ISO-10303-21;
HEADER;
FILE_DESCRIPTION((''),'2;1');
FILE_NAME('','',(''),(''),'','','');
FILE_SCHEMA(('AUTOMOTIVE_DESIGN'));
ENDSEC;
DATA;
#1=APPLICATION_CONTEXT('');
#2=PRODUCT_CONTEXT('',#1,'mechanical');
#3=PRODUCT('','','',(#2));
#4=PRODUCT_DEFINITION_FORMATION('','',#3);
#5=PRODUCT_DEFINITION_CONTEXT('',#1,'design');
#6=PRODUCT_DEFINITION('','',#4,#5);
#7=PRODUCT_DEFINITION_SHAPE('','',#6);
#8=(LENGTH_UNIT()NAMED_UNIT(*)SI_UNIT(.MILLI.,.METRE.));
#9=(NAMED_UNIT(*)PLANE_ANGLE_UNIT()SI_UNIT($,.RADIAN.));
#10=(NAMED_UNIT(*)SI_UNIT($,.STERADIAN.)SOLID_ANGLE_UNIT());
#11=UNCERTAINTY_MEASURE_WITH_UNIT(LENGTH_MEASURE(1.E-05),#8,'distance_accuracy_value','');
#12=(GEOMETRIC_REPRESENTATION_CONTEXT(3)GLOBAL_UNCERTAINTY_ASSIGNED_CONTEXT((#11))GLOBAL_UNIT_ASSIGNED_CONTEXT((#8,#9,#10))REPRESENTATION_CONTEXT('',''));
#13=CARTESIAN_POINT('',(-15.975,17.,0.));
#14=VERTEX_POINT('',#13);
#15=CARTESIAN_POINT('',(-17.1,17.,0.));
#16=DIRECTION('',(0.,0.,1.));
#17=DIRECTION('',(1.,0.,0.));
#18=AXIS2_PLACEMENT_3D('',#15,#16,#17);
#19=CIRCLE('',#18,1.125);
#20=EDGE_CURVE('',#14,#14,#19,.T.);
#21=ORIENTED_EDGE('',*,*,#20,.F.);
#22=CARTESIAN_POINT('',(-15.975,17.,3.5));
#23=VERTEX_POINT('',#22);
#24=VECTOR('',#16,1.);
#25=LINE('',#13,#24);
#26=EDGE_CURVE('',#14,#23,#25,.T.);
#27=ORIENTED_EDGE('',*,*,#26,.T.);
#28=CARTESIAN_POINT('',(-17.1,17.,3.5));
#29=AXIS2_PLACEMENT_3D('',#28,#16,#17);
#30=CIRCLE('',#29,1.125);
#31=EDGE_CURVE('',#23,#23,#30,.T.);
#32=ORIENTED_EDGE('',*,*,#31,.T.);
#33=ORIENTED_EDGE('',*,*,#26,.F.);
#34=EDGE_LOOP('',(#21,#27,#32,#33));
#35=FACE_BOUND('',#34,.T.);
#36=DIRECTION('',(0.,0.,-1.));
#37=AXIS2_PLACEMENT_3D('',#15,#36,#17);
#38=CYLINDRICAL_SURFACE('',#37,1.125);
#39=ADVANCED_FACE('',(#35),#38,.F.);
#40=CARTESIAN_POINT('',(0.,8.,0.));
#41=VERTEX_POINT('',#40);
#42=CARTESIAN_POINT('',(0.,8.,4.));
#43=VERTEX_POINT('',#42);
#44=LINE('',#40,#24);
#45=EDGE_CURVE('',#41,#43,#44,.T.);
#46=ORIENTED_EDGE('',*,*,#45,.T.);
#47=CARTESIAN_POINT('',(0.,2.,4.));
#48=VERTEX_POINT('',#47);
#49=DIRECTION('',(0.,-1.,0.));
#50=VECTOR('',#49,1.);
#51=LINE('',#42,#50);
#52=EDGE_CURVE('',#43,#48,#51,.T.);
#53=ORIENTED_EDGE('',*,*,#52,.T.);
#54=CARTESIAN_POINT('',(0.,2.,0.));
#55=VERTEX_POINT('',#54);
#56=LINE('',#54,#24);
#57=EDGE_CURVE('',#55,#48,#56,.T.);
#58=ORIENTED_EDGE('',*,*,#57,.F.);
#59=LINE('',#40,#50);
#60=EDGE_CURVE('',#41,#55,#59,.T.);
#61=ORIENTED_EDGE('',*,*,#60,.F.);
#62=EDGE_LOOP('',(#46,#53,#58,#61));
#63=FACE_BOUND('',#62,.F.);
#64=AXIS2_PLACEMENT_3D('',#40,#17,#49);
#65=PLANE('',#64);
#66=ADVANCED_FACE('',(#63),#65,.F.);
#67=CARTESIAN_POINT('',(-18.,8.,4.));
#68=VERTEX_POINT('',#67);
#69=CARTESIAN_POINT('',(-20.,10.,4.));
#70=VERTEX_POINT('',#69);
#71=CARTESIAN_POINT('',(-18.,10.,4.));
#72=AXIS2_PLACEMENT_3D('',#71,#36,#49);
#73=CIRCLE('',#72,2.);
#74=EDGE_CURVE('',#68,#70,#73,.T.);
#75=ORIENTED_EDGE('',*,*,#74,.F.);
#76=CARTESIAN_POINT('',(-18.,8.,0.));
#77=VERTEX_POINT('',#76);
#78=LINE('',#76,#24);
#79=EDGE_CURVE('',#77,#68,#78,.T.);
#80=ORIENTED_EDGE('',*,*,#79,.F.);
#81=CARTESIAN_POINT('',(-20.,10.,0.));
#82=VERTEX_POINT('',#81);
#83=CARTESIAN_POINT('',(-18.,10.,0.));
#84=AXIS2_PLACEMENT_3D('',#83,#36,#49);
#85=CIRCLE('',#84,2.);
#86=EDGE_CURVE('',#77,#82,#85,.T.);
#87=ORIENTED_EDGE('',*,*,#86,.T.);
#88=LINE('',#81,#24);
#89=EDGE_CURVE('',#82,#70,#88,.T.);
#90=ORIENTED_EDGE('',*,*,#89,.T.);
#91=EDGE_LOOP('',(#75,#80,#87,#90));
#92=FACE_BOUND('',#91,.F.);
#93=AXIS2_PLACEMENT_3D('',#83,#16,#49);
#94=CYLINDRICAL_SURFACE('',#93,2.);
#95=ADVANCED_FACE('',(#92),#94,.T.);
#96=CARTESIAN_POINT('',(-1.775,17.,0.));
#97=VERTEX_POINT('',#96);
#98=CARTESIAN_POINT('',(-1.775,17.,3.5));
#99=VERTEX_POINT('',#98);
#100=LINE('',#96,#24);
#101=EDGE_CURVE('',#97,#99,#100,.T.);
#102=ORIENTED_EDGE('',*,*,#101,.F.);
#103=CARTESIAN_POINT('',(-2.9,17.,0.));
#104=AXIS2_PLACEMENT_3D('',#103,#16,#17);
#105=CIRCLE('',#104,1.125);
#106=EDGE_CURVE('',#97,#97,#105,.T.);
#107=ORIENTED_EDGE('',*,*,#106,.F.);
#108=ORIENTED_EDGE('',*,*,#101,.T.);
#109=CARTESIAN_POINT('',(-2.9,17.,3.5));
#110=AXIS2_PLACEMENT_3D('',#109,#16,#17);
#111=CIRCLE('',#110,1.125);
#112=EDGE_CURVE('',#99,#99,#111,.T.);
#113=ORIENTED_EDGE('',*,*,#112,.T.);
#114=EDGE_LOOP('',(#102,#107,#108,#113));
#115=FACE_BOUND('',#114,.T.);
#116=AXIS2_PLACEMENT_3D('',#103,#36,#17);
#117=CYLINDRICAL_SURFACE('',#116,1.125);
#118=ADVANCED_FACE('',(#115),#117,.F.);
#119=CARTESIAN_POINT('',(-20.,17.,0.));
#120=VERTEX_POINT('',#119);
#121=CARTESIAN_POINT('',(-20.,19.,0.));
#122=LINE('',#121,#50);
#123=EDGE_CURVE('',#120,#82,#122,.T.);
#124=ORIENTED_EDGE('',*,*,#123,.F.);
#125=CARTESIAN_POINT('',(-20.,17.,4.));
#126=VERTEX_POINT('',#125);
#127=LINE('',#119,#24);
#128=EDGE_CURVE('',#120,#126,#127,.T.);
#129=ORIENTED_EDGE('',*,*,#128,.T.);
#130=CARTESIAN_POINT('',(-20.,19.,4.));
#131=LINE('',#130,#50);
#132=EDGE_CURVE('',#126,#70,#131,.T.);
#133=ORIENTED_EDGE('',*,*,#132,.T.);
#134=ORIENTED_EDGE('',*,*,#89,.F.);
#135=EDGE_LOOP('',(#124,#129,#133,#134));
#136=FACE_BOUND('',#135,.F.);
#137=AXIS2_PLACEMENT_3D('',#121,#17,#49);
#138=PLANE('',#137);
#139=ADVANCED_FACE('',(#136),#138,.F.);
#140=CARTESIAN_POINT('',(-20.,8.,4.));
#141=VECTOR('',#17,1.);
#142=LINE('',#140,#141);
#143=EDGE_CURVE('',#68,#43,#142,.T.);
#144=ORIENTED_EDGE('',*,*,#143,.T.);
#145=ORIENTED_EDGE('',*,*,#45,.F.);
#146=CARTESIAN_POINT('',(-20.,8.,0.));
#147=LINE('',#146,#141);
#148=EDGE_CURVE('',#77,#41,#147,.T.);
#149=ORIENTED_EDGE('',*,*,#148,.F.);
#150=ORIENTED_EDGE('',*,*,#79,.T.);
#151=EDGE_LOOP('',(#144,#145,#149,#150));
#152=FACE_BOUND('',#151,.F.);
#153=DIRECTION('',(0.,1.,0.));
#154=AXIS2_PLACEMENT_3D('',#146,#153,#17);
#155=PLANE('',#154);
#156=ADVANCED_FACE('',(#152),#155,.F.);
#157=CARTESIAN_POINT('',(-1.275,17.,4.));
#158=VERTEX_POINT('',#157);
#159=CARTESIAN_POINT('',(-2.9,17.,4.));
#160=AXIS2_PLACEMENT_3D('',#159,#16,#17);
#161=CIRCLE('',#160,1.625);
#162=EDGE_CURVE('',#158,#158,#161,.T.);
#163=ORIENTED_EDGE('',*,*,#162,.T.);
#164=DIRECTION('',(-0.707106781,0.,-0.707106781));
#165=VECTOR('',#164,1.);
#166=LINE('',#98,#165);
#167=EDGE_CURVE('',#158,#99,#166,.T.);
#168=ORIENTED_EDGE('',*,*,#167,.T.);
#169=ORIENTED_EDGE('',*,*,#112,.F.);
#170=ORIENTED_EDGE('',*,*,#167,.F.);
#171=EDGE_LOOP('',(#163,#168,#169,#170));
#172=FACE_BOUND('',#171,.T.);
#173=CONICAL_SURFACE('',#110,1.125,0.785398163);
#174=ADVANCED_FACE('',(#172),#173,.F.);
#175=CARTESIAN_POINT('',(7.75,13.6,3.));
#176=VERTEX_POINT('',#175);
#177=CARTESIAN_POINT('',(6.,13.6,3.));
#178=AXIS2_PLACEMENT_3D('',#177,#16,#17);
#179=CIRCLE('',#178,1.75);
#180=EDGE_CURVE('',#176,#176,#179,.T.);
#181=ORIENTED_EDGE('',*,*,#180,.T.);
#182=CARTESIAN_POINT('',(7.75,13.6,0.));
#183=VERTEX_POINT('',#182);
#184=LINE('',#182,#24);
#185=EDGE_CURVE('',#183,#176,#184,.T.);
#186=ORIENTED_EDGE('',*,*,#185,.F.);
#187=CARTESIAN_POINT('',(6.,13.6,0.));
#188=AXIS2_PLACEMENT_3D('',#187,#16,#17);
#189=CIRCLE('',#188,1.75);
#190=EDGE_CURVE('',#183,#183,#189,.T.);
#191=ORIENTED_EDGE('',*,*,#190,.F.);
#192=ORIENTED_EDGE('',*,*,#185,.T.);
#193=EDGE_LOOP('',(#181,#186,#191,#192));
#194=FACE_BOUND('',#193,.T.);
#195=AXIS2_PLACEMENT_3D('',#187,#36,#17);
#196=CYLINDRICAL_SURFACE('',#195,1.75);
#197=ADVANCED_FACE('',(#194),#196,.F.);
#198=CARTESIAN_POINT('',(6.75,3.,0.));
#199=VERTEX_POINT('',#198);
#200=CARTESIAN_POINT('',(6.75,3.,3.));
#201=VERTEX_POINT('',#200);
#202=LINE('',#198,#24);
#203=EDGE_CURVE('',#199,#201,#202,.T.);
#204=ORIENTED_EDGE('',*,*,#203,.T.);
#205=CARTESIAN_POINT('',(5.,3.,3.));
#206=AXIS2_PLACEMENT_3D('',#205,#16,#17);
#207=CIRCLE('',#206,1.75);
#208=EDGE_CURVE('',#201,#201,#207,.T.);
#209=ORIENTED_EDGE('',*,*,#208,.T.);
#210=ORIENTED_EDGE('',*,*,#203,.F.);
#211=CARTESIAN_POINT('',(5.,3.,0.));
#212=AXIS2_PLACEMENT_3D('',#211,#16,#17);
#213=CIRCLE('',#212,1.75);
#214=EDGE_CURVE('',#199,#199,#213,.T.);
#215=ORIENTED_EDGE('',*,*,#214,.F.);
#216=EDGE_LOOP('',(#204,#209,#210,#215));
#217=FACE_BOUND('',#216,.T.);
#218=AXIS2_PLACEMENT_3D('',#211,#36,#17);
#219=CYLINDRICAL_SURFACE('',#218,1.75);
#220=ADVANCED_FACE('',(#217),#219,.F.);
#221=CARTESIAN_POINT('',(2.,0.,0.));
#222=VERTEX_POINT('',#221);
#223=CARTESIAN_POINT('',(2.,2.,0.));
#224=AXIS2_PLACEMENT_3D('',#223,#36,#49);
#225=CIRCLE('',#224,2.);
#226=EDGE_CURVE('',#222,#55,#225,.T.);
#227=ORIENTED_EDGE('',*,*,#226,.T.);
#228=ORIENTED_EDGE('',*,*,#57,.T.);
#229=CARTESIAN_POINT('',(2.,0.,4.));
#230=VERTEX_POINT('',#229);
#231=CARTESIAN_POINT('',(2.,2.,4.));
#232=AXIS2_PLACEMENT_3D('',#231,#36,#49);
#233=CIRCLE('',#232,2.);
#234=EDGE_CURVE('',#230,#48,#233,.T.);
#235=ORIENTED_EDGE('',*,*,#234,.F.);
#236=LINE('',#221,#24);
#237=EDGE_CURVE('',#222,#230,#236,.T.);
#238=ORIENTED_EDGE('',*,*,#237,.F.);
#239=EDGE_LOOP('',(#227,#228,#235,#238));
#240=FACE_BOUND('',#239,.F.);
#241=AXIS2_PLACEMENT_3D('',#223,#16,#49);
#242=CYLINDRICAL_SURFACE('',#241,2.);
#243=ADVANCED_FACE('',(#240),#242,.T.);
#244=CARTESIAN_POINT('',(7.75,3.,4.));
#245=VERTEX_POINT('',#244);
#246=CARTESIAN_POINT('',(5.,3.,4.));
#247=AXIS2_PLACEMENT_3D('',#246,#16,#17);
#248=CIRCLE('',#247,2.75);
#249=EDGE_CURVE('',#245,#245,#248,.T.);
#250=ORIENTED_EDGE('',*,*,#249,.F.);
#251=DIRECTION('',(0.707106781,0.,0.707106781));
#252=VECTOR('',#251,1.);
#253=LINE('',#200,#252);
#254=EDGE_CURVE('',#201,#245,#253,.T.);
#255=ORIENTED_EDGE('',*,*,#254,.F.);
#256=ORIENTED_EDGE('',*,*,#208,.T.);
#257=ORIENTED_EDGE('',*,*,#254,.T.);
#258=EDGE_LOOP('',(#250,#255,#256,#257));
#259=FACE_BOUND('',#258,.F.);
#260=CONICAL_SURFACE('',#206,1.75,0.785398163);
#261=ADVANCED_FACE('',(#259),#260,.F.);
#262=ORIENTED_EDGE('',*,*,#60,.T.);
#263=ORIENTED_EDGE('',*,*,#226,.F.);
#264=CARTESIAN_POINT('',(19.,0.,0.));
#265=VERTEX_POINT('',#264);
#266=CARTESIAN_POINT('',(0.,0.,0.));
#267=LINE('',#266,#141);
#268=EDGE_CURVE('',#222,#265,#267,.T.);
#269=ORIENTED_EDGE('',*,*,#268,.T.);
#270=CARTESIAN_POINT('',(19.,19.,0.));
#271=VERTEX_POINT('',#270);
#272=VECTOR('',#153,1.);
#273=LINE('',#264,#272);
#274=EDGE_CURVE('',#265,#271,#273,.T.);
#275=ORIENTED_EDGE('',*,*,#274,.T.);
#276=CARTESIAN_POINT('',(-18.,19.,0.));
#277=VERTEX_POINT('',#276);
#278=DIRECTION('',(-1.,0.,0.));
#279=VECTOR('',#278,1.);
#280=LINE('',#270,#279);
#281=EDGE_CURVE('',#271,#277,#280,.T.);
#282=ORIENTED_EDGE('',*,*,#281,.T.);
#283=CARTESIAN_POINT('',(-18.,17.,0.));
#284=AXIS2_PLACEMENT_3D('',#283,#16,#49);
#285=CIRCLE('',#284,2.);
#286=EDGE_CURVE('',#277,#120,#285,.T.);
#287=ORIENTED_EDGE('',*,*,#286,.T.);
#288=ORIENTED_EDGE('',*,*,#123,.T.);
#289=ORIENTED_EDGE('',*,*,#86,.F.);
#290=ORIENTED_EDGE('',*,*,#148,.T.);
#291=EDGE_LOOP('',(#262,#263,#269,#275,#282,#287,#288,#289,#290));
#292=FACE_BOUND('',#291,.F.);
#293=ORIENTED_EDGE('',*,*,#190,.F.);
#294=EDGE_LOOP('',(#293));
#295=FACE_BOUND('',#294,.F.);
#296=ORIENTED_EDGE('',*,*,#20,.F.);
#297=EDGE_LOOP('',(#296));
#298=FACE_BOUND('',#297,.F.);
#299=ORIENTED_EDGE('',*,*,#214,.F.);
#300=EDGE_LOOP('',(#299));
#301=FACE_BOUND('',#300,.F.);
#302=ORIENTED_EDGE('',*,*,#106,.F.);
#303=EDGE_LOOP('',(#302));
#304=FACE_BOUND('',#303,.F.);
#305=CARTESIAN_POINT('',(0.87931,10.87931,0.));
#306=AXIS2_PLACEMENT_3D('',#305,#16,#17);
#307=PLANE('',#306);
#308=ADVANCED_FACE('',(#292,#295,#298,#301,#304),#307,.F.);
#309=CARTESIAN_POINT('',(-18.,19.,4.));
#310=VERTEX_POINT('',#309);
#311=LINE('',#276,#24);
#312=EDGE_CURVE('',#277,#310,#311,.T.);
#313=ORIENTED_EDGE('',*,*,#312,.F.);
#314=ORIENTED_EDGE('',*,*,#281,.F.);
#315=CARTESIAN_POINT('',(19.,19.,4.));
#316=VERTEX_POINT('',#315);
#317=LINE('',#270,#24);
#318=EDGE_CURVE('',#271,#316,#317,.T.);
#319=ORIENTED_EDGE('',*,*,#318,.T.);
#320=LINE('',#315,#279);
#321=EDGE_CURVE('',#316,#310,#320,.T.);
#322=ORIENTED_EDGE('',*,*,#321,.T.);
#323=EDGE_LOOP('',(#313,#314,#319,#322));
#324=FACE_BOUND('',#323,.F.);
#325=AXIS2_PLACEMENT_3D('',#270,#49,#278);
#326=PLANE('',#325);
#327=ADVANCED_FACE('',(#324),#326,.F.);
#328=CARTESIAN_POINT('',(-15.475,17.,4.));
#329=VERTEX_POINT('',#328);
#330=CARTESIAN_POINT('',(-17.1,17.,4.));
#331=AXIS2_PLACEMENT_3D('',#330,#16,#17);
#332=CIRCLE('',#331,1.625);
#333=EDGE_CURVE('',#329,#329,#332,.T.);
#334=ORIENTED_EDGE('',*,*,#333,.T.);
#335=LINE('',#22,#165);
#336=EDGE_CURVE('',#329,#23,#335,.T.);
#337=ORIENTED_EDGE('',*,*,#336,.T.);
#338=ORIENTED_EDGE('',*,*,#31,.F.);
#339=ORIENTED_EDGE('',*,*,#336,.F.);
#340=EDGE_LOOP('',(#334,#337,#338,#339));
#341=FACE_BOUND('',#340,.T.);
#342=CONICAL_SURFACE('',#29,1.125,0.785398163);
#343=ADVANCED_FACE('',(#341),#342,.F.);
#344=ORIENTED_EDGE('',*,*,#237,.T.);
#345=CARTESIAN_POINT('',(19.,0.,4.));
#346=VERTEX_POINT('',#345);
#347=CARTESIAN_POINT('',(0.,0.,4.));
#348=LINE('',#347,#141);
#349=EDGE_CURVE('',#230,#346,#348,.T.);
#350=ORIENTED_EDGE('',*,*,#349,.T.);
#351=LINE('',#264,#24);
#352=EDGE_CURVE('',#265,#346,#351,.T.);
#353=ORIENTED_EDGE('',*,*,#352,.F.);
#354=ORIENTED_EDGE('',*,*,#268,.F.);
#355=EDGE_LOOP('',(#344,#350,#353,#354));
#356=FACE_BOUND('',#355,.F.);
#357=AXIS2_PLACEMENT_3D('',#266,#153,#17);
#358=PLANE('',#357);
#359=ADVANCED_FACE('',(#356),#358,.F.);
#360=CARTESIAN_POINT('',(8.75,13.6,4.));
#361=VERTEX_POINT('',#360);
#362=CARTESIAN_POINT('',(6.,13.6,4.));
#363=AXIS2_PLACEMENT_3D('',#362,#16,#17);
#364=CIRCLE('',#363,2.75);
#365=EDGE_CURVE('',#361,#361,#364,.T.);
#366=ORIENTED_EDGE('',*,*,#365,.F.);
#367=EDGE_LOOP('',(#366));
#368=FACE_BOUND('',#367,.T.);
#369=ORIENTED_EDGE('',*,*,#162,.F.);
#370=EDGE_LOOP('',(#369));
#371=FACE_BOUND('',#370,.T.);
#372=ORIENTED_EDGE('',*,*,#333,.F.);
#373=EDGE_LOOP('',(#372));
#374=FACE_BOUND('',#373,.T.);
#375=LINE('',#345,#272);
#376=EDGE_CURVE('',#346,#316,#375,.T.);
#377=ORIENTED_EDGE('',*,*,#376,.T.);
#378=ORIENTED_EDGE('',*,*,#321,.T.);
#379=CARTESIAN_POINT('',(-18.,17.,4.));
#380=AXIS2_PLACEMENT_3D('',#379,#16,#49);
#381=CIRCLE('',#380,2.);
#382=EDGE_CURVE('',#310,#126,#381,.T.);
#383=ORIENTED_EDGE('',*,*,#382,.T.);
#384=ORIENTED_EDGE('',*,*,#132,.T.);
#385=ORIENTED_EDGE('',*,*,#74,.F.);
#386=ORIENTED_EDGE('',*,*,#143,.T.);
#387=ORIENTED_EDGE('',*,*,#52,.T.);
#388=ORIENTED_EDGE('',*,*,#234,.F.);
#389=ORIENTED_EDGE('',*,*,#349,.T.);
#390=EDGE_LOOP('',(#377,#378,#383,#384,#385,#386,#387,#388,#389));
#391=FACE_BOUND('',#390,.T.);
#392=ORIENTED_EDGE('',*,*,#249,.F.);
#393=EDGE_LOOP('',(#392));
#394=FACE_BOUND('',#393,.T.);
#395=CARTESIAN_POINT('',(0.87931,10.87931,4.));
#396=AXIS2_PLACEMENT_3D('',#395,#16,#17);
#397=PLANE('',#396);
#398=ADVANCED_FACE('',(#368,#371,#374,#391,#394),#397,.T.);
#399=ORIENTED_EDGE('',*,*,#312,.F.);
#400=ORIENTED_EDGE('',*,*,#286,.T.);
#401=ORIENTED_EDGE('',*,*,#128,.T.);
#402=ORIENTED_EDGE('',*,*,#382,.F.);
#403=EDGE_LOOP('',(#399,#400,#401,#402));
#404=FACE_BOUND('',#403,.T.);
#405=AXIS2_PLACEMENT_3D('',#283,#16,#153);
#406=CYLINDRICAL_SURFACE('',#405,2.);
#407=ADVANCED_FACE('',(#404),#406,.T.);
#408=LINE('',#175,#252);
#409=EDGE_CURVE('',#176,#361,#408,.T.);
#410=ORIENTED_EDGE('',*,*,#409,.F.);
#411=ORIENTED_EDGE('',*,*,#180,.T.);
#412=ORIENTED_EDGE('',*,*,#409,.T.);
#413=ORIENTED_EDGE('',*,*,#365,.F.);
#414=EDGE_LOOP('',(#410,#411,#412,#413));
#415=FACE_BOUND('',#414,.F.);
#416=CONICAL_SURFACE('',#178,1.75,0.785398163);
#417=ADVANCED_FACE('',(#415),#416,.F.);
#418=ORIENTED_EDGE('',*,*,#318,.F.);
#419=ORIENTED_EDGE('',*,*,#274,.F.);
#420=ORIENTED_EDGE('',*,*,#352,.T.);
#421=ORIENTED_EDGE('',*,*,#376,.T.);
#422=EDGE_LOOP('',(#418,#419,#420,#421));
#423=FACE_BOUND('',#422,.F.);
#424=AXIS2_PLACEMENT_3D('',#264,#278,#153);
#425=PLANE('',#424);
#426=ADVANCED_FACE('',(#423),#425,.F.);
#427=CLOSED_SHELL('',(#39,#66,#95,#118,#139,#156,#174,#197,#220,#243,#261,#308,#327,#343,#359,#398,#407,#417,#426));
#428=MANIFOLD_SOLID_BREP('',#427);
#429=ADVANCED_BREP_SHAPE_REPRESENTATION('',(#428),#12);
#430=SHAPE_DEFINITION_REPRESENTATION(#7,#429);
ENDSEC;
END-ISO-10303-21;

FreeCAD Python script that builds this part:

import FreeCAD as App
import Part
import Sketcher
Q = App.Units.Quantity


def edges_at(feature, points):
    """Names of the edges that pass closest to the given points."""
    edges = feature.Shape.Edges
    near = lambda p: min(range(len(edges)), key=lambda i: edges[i].distToShape(Part.Vertex(*p))[0])
    return sorted({f"Edge{near(p) + 1}" for p in points})

doc = App.newDocument("Part")
params = doc.addObject("Spreadsheet::Sheet", "Params")
for row, (alias, value) in enumerate([
    ("sketch1_diameter", "3.5 mm"),
    ("sketch1_diameter2", "2.25 mm"),
    ("sketch1_width", "19 mm"),
    ("sketch1_width2", "39 mm"),
    ("sketch1_height", "11 mm"),
    ("pad1_length", "4 mm"),
    ("chamfer_size", "1 mm"),
    ("chamfer2_size", "0.5 mm"),
    ("fillet_radius", "2 mm"),
], start=1):
    params.set(f"A{row}", alias)
    params.set(f"B{row}", "=" + value)
    params.setAlias(f"B{row}", alias)

body = doc.addObject("PartDesign::Body", "Body")

# Sketch on XY plane
sketch1 = body.newObject("Sketcher::SketchObject", "Sketch")
sketch1.AttachmentSupport = (doc.getObject("XY_Plane"), [""])
sketch1.MapMode = "FlatFace"
sketch1.addGeometry(Part.LineSegment(App.Vector(0, 0, 0), App.Vector(19, 0, 0)), False)
sketch1.addGeometry(Part.LineSegment(App.Vector(19, 0, 0), App.Vector(19, 19, 0)), False)
sketch1.addGeometry(Part.LineSegment(App.Vector(19, 19, 0), App.Vector(-20, 19, 0)), False)
sketch1.addGeometry(Part.LineSegment(App.Vector(-20, 19, 0), App.Vector(-20, 8, 0)), False)
sketch1.addGeometry(Part.LineSegment(App.Vector(-20, 8, 0), App.Vector(0, 8, 0)), False)
sketch1.addGeometry(Part.LineSegment(App.Vector(0, 8, 0), App.Vector(0, 0, 0)), False)
sketch1.addGeometry(Part.Circle(App.Vector(5, 3, 0), App.Vector(0, 0, 1), 1.8), False)
sketch1.addGeometry(Part.Circle(App.Vector(-17.1, 17, 0), App.Vector(0, 0, 1), 1.1), False)
sketch1.addGeometry(Part.Circle(App.Vector(6, 13.6, 0), App.Vector(0, 0, 1), 1.8), False)
sketch1.addGeometry(Part.Circle(App.Vector(-2.9, 17, 0), App.Vector(0, 0, 1), 1.1), False)
sketch1.addConstraint(Sketcher.Constraint("Coincident", 0, 2, 1, 1))
sketch1.addConstraint(Sketcher.Constraint("Coincident", 1, 2, 2, 1))
sketch1.addConstraint(Sketcher.Constraint("Coincident", 2, 2, 3, 1))
sketch1.addConstraint(Sketcher.Constraint("Coincident", 3, 2, 4, 1))
sketch1.addConstraint(Sketcher.Constraint("Coincident", 4, 2, 5, 1))
sketch1.addConstraint(Sketcher.Constraint("Coincident", 5, 2, 0, 1))
sketch1.addConstraint(Sketcher.Constraint("Horizontal", 0))
sketch1.addConstraint(Sketcher.Constraint("Vertical", 1))
sketch1.addConstraint(Sketcher.Constraint("Horizontal", 2))
sketch1.addConstraint(Sketcher.Constraint("Vertical", 3))
sketch1.addConstraint(Sketcher.Constraint("Horizontal", 4))
sketch1.addConstraint(Sketcher.Constraint("Vertical", 5))
sketch1.addConstraint(Sketcher.Constraint("Coincident", 5, 2, -1, 1))
sketch1.addConstraint(Sketcher.Constraint("Equal", 6, 8))
sketch1.addConstraint(Sketcher.Constraint("Equal", 7, 9))
sketch1.addConstraint(Sketcher.Constraint("Horizontal", 7, 3, 9, 3))
sketch1.addConstraint(Sketcher.Constraint("Equal", 0, 1))
sketch1.addConstraint(Sketcher.Constraint("Diameter", 6, Q("3.5 mm")))
sketch1.addConstraint(Sketcher.Constraint("Diameter", 7, Q("2.25 mm")))
sketch1.addConstraint(Sketcher.Constraint("DistanceX", 0, 1, 0, 2, Q("19 mm")))
sketch1.addConstraint(Sketcher.Constraint("DistanceX", 2, 2, 2, 1, Q("39 mm")))
sketch1.addConstraint(Sketcher.Constraint("DistanceY", 3, 2, 3, 1, Q("11 mm")))
sketch1.addConstraint(Sketcher.Constraint("DistanceX", -1, 1, 6, 3, Q("5 mm")))
sketch1.addConstraint(Sketcher.Constraint("DistanceY", -1, 1, 6, 3, Q("3 mm")))
sketch1.addConstraint(Sketcher.Constraint("DistanceY", -1, 1, 7, 3, Q("17 mm")))
sketch1.addConstraint(Sketcher.Constraint("DistanceX", -1, 1, 8, 3, Q("6 mm")))
sketch1.addConstraint(Sketcher.Constraint("DistanceX", 7, 3, -1, 1, Q("17.1 mm")))
sketch1.addConstraint(Sketcher.Constraint("DistanceY", -1, 1, 8, 3, Q("13.6 mm")))
sketch1.addConstraint(Sketcher.Constraint("DistanceX", 9, 3, -1, 1, Q("2.9 mm")))
sketch1.setExpression("Constraints[17]", "Params.sketch1_diameter")
sketch1.setExpression("Constraints[18]", "Params.sketch1_diameter2")
sketch1.setExpression("Constraints[19]", "Params.sketch1_width")
sketch1.setExpression("Constraints[20]", "Params.sketch1_width2")
sketch1.setExpression("Constraints[21]", "Params.sketch1_height")
pad1 = body.newObject("PartDesign::Pad", "Pad")
pad1.Profile = sketch1
pad1.setExpression("Length", "Params.pad1_length")
doc.recompute()

chamfer = body.newObject("PartDesign::Chamfer", "Chamfer")
chamfer.Base = (pad1, edges_at(pad1, [(4.25, 13.6, 4), (3.25, 3, 4)]))
chamfer.setExpression("Size", "Params.chamfer_size")
doc.recompute()

chamfer2 = body.newObject("PartDesign::Chamfer", "Chamfer001")
chamfer2.Base = (chamfer, edges_at(chamfer, [(-4.025, 17, 4), (-18.225, 17, 4)]))
chamfer2.setExpression("Size", "Params.chamfer2_size")
doc.recompute()

fillet = body.newObject("PartDesign::Fillet", "Fillet")
fillet.Base = (chamfer2, edges_at(chamfer2, [(0, 0, 2), (-20, 8, 2), (-20, 19, 2)]))
fillet.setExpression("Radius", "Params.fillet_radius")

doc.recompute()
